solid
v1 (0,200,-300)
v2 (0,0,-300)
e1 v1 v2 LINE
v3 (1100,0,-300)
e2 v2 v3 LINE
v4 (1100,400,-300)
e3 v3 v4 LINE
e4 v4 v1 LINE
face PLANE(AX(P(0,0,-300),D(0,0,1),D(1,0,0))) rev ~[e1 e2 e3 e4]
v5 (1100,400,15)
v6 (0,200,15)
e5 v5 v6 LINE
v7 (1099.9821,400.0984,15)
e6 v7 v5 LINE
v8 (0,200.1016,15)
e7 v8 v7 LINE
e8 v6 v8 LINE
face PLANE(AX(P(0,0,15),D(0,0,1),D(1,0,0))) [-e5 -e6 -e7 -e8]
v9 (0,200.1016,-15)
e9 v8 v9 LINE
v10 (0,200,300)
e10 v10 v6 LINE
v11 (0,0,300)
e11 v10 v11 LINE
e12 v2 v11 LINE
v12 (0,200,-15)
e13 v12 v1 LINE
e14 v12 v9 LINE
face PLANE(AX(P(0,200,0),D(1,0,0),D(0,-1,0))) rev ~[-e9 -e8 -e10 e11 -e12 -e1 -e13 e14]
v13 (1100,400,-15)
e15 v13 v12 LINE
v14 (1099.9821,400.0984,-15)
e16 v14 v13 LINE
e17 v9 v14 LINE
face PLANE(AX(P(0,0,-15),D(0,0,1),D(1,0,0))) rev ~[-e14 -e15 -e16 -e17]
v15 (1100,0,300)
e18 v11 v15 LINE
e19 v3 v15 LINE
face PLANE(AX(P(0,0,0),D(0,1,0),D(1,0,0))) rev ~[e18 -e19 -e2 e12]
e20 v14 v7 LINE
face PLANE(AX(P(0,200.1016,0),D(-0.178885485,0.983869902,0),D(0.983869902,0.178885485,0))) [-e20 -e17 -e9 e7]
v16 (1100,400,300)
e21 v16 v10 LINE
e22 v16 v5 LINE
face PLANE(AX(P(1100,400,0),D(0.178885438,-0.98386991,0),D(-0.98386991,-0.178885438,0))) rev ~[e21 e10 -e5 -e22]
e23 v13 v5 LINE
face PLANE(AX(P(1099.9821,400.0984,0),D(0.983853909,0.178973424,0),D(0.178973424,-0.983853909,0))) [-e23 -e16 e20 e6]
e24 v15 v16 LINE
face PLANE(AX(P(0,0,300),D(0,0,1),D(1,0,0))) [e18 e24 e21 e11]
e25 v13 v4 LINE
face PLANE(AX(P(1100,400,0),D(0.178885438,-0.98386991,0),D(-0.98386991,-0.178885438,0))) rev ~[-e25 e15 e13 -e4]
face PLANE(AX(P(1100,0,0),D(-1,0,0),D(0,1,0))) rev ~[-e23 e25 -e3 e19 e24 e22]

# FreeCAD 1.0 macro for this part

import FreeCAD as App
import Part
import Sketcher
from FreeCAD import Vector
Q = App.Units.Quantity

doc = App.newDocument("Part")
body = doc.addObject("PartDesign::Body", "Body")

# Sketch on XY plane
sketch1 = doc.addObject("Sketcher::SketchObject", "Sketch")
body.addObject(sketch1)
sketch1.AttachmentSupport = (doc.XY_Plane, [""])
sketch1.MapMode = "FlatFace"
sketch1.addGeometry([
    Part.LineSegment(Vector(0, 200, 0), Vector(0, 0, 0)),
    Part.LineSegment(Vector(0, 0, 0), Vector(1100, 0, 0)),
    Part.LineSegment(Vector(1100, 0, 0), Vector(1100, 400, 0)),
    Part.LineSegment(Vector(1100, 400, 0), Vector(0, 200, 0)),
], False)
sketch1.addConstraint([
    Sketcher.Constraint("Coincident", 0, 2, 1, 1),
    Sketcher.Constraint("Coincident", 1, 2, 2, 1),
    Sketcher.Constraint("Coincident", 2, 2, 3, 1),
    Sketcher.Constraint("Coincident", 3, 2, 0, 1),
    Sketcher.Constraint("Vertical", 0),
    Sketcher.Constraint("Horizontal", 1),
    Sketcher.Constraint("Vertical", 2),
    Sketcher.Constraint("Coincident", 0, 2, -1, 1),
    Sketcher.Constraint("DistanceX", 1, 1, 1, 2, Q("1100 mm")),
    Sketcher.Constraint("DistanceY", 0, 2, 0, 1, Q("200 mm")),
    Sketcher.Constraint("DistanceY", 2, 1, 2, 2, Q("400 mm")),
])
pad1 = doc.addObject("PartDesign::Pad", "Pad")
body.addObject(pad1)
pad1.Profile = sketch1
pad1.Length = 600
pad1.Midplane = True

# Sketch on XY plane
sketch2 = doc.addObject("Sketcher::SketchObject", "Sketch001")
body.addObject(sketch2)
sketch2.AttachmentSupport = (doc.XY_Plane, [""])
sketch2.MapMode = "FlatFace"
sketch2.addGeometry([
    Part.LineSegment(Vector(0, 200, 0), Vector(1100, 400, 0)),
    Part.LineSegment(Vector(1100, 400, 0), Vector(1099.9821, 400.0984, 0)),
    Part.LineSegment(Vector(1099.9821, 400.0984, 0), Vector(0, 200.1016, 0)),
    Part.LineSegment(Vector(0, 200.1016, 0), Vector(0, 200, 0)),
], False)
sketch2.addConstraint([
    Sketcher.Constraint("Coincident", 0, 2, 1, 1),
    Sketcher.Constraint("Coincident", 1, 2, 2, 1),
    Sketcher.Constraint("Coincident", 2, 2, 3, 1),
    Sketcher.Constraint("Coincident", 3, 2, 0, 1),
    Sketcher.Constraint("Vertical", 3),
    Sketcher.Constraint("PointOnObject", 2, 2, -2),
    Sketcher.Constraint("Perpendicular", 0, 1),
    Sketcher.Constraint("Parallel", 0, 2),
    Sketcher.Constraint("Distance", 1, Q("0.1 mm")),
    Sketcher.Constraint("DistanceX", -1, 1, 0, 2, Q("1100 mm")),
    Sketcher.Constraint("DistanceY", -1, 1, 0, 2, Q("400 mm")),
    Sketcher.Constraint("DistanceY", -1, 1, 3, 2, Q("200 mm")),
])
pad2 = doc.addObject("PartDesign::Pad", "Pad001")
body.addObject(pad2)
pad2.Profile = sketch2
pad2.Length = 30
pad2.Midplane = True

doc.recompute()
